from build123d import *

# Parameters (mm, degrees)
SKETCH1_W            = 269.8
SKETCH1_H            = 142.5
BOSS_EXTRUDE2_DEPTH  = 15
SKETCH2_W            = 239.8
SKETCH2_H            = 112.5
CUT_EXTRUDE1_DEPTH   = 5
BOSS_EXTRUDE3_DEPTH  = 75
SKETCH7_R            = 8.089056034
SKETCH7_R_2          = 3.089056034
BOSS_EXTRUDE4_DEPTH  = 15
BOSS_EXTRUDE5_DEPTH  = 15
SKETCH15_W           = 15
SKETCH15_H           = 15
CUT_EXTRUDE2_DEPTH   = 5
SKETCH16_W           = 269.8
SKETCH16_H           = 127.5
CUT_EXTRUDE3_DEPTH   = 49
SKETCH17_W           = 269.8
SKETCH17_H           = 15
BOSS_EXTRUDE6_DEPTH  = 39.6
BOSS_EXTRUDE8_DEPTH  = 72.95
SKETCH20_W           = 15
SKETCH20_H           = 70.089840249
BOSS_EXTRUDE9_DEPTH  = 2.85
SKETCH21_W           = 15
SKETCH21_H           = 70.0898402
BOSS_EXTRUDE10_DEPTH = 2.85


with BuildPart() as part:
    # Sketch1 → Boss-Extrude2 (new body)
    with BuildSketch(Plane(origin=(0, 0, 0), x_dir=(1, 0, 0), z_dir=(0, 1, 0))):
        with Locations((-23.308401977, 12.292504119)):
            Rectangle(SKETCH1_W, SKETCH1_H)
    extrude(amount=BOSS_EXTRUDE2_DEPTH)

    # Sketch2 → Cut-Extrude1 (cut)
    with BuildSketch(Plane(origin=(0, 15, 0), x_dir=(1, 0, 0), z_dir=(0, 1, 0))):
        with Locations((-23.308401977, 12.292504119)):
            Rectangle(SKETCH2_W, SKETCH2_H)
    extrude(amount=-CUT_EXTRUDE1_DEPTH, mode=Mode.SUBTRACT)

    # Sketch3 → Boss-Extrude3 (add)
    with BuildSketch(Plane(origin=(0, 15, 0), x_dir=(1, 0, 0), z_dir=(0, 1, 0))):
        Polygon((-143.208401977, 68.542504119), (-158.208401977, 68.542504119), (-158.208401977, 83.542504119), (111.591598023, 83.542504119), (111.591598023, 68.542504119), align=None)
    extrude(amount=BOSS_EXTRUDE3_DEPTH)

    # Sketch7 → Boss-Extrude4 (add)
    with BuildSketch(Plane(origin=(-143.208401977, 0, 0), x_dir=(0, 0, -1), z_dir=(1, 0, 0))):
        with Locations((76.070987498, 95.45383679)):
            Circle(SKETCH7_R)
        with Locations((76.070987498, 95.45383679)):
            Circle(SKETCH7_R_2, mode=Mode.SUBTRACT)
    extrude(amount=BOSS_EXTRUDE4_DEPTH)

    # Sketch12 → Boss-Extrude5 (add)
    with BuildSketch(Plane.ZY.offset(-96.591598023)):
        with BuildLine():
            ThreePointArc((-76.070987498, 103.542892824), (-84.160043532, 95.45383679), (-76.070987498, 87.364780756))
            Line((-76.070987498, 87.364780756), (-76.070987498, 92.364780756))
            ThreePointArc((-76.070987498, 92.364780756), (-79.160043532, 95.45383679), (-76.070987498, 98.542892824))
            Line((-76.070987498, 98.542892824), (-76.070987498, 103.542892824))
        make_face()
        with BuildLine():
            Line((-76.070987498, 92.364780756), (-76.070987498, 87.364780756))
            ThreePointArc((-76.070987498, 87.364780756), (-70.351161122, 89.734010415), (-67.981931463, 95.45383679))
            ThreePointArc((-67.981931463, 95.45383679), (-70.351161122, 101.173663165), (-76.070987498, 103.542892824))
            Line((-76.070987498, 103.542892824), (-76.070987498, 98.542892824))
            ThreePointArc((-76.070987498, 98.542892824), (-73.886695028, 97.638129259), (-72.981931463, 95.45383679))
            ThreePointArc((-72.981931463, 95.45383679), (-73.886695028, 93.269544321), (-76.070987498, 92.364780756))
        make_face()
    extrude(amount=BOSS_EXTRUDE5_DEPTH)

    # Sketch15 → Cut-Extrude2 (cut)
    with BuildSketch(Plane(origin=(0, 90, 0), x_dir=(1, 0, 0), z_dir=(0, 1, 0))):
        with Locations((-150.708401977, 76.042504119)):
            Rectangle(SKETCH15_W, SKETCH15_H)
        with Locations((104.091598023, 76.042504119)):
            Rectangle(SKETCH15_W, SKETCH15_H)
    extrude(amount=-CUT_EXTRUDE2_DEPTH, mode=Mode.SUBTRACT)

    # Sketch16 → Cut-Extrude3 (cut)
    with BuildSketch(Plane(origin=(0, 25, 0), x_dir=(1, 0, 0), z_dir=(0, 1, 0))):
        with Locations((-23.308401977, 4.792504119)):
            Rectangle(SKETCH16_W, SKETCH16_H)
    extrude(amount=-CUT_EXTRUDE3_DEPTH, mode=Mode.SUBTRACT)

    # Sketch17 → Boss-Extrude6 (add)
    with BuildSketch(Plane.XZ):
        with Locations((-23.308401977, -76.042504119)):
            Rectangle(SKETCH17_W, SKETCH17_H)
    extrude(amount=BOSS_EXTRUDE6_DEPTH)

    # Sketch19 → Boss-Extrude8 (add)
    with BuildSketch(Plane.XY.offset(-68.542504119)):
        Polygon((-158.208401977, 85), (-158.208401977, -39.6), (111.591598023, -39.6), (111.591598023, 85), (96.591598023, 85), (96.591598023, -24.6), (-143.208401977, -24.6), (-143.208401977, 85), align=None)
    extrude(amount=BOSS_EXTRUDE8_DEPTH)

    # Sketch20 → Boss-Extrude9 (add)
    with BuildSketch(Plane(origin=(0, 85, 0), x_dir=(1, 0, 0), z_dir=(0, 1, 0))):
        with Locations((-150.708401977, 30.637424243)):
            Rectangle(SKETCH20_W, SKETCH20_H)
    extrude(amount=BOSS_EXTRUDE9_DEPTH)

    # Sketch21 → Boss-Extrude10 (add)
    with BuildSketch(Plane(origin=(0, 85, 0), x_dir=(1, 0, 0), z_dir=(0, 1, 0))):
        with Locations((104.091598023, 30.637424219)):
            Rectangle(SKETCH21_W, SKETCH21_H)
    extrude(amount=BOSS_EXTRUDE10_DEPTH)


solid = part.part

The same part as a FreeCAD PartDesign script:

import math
import FreeCAD as App
import Part
import Sketcher
from FreeCAD import Vector


def add_polygon(sketch, points):
    """Adds a closed chain of lines whose ends are joined by coincident constraints."""
    first, n = sketch.GeometryCount, len(points)
    for a, b in zip(points, points[1:] + points[:1]):
        sketch.addGeometry(Part.LineSegment(App.Vector(*a, 0), App.Vector(*b, 0)), False)
    for i in range(n):
        sketch.addConstraint(Sketcher.Constraint("Coincident", first + i, 2, first + (i + 1) % n, 1))

doc = App.newDocument("Part")
body = doc.addObject("PartDesign::Body", "Body")

# Sketch on XZ plane
sketch1 = body.newObject("Sketcher::SketchObject", "Sketch")
sketch1.AttachmentSupport = (doc.getObject("XZ_Plane"), [""])
sketch1.MapMode = "FlatFace"
add_polygon(sketch1, [(-158, -84), (-158, 59), (112, 59), (112, -84)])  # lines 0-3
sketch1.addConstraint([
    Sketcher.Constraint("Vertical", 0),
    Sketcher.Constraint("Horizontal", 1),
    Sketcher.Constraint("Vertical", 2),
    Sketcher.Constraint("Horizontal", 3),
    Sketcher.Constraint("DistanceX", 1, 1, 1, 2, 269.8),
    Sketcher.Constraint("DistanceY", 0, 1, 0, 2, 142.5),
    Sketcher.Constraint("DistanceX", 0, 2, -1, 1, 158.208402),
    Sketcher.Constraint("DistanceY", -1, 1, 0, 2, 58.957496),
])
pad1 = body.newObject("PartDesign::Pad", "Pad")
pad1.Profile = sketch1
pad1.Length = 15
pad1.Reversed = True

# Sketch on XZ plane
sketch2 = body.newObject("Sketcher::SketchObject", "Sketch001")
sketch2.AttachmentSupport = (doc.getObject("XZ_Plane"), [""])
sketch2.MapMode = "FlatFace"
sketch2.AttachmentOffset = App.Placement(Vector(0, 0, -15), App.Rotation())
add_polygon(sketch2, [(-143, -69), (-143, 44), (97, 44), (97, -69)])  # lines 0-3
sketch2.addConstraint([
    Sketcher.Constraint("Vertical", 0),
    Sketcher.Constraint("Horizontal", 1),
    Sketcher.Constraint("Vertical", 2),
    Sketcher.Constraint("Horizontal", 3),
    Sketcher.Constraint("DistanceX", 1, 1, 1, 2, 239.8),
    Sketcher.Constraint("DistanceY", 0, 1, 0, 2, 112.5),
    Sketcher.Constraint("DistanceX", 0, 2, -1, 1, 143.208402),
    Sketcher.Constraint("DistanceY", -1, 1, 0, 2, 43.957496),
])
pocket1 = body.newObject("PartDesign::Pocket", "Pocket")
pocket1.Profile = sketch2
pocket1.Length = 5
pocket1.Reversed = True

# Sketch on XZ plane
sketch3 = body.newObject("Sketcher::SketchObject", "Sketch002")
sketch3.AttachmentSupport = (doc.getObject("XZ_Plane"), [""])
sketch3.MapMode = "FlatFace"
sketch3.AttachmentOffset = App.Placement(Vector(0, 0, -15), App.Rotation())
add_polygon(sketch3, [(-158, -69), (112, -69), (112, -84), (-158, -84)])  # lines 0-3
sketch3.addConstraint([
    Sketcher.Constraint("Horizontal", 0),
    Sketcher.Constraint("Vertical", 1),
    Sketcher.Constraint("Horizontal", 2),
    Sketcher.Constraint("Vertical", 3),
    Sketcher.Constraint("DistanceY", 1, 2, 1, 1, 15.0),
    Sketcher.Constraint("DistanceX", 0, 1, 0, 2, 269.8),
    Sketcher.Constraint("DistanceX", -1, 1, 0, 2, 111.591598),
    Sketcher.Constraint("DistanceY", 0, 2, -1, 1, 68.542504),
])
pad2 = body.newObject("PartDesign::Pad", "Pad001")
pad2.Profile = sketch3
pad2.Length = 75
pad2.Reversed = True

# Sketch on YZ plane
sketch4 = body.newObject("Sketcher::SketchObject", "Sketch003")
sketch4.AttachmentSupport = (doc.getObject("YZ_Plane"), [""])
sketch4.MapMode = "FlatFace"
sketch4.AttachmentOffset = App.Placement(Vector(0, 0, -143.208402), App.Rotation())
sketch4.addGeometry([
    Part.Circle(Vector(95.5, -76.1, 0), Vector(0, 0, 1), 8.1),
    Part.Circle(Vector(95.5, -76.1, 0), Vector(0, 0, 1), 3.1),
], False)
sketch4.addConstraint([
    Sketcher.Constraint("Coincident", 1, 3, 0, 3),
    Sketcher.Constraint("Diameter", 0, 16.178112),
    Sketcher.Constraint("Diameter", 1, 6.178112),
    Sketcher.Constraint("DistanceX", -1, 1, 0, 3, 95.453837),
    Sketcher.Constraint("DistanceY", 0, 3, -1, 1, 76.070987),
])
pad3 = body.newObject("PartDesign::Pad", "Pad002")
pad3.Profile = sketch4
pad3.Length = 15

# Sketch on YZ plane
sketch5 = body.newObject("Sketcher::SketchObject", "Sketch004")
sketch5.AttachmentSupport = (doc.getObject("YZ_Plane"), [""])
sketch5.MapMode = "FlatFace"
sketch5.AttachmentOffset = App.Placement(Vector(0, 0, 96.591598), App.Rotation())
sketch5.addGeometry([
    Part.ArcOfCircle(Part.Circle(Vector(95.5, -76.1, 0), Vector(0, 0, 1), 8.1), math.radians(180), math.radians(360)),  # 0
    Part.ArcOfCircle(Part.Circle(Vector(95.5, -76.1, 0), Vector(0, 0, 1), 8.1), math.radians(90), math.radians(180)),  # 1
    Part.ArcOfCircle(Part.Circle(Vector(95.5, -76.1, 0), Vector(0, 0, 1), 8.1), math.radians(0), math.radians(90)),  # 2
    Part.ArcOfCircle(Part.Circle(Vector(95.5, -76.1, 0), Vector(0, 0, 1), 3.1), math.radians(180), math.radians(360)),  # 3
    Part.ArcOfCircle(Part.Circle(Vector(95.5, -76.1, 0), Vector(0, 0, 1), 3.1), math.radians(0), math.radians(90)),  # 4
    Part.ArcOfCircle(Part.Circle(Vector(95.5, -76.1, 0), Vector(0, 0, 1), 3.1), math.radians(90), math.radians(180)),  # 5
], False)
sketch5.addConstraint([
    Sketcher.Constraint("Tangent", 0, 1, 1, 2),
    Sketcher.Constraint("Tangent", 1, 1, 2, 2),
    Sketcher.Constraint("Tangent", 2, 1, 0, 2),
    Sketcher.Constraint("Tangent", 3, 2, 4, 1),
    Sketcher.Constraint("Tangent", 4, 2, 5, 1),
    Sketcher.Constraint("Tangent", 5, 2, 3, 1),
    Sketcher.Constraint("Coincident", 3, 3, 0, 3),
    Sketcher.Constraint("Horizontal", 5, 3, 0, 1),
    Sketcher.Constraint("Horizontal", 0, 1, 2, 1),
    Sketcher.Constraint("Horizontal", 2, 1, 3, 2),
    Sketcher.Constraint("Horizontal", 3, 2, 5, 2),
    Sketcher.Constraint("Vertical", 5, 3, 1, 1),
    Sketcher.Constraint("Vertical", 1, 1, 4, 2),
    Sketcher.Constraint("Radius", 0, 8.089056),
    Sketcher.Constraint("Radius", 3, 3.089056),
    Sketcher.Constraint("DistanceX", -1, 1, 0, 1, 87.364781),
    Sketcher.Constraint("DistanceY", 1, 1, -1, 1, 67.981931),
])
pad4 = body.newObject("PartDesign::Pad", "Pad003")
pad4.Profile = sketch5
pad4.Length = 15
pad4.Reversed = True

# Sketch on XZ plane
sketch6 = body.newObject("Sketcher::SketchObject", "Sketch005")
sketch6.AttachmentSupport = (doc.getObject("XZ_Plane"), [""])
sketch6.MapMode = "FlatFace"
sketch6.AttachmentOffset = App.Placement(Vector(0, 0, -90), App.Rotation())
add_polygon(sketch6, [(-158, -84), (-158, -69), (-143, -69), (-143, -84)])  # lines 0-3
add_polygon(sketch6, [(97, -84), (97, -69), (112, -69), (112, -84)])  # lines 4-7
sketch6.addConstraint([
    Sketcher.Constraint("Vertical", 0),
    Sketcher.Constraint("Horizontal", 1),
    Sketcher.Constraint("Vertical", 2),
    Sketcher.Constraint("Horizontal", 3),
    Sketcher.Constraint("Vertical", 4),
    Sketcher.Constraint("Horizontal", 5),
    Sketcher.Constraint("Vertical", 6),
    Sketcher.Constraint("Horizontal", 7),
    Sketcher.Constraint("Horizontal", 1, 2, 4, 2),
    Sketcher.Constraint("Horizontal", 3, 2, 6, 2),
    Sketcher.Constraint("Equal", 3, 5),
    Sketcher.Constraint("Equal", 7, 0),
    Sketcher.Constraint("DistanceX", 1, 1, 1, 2, 15.0),
    Sketcher.Constraint("DistanceX", 1, 2, 4, 2, 239.8),
    Sketcher.Constraint("DistanceX", 0, 2, -1, 1, 158.208402),
    Sketcher.Constraint("DistanceY", 0, 2, -1, 1, 68.542504),
])
pocket2 = body.newObject("PartDesign::Pocket", "Pocket001")
pocket2.Profile = sketch6
pocket2.Length = 5
pocket2.Reversed = True

# Sketch on XZ plane
sketch7 = body.newObject("Sketcher::SketchObject", "Sketch006")
sketch7.AttachmentSupport = (doc.getObject("XZ_Plane"), [""])
sketch7.MapMode = "FlatFace"
sketch7.AttachmentOffset = App.Placement(Vector(0, 0, -25), App.Rotation())
add_polygon(sketch7, [(-158, -69), (-158, 59), (112, 59), (112, -69)])  # lines 0-3
sketch7.addConstraint([
    Sketcher.Constraint("Vertical", 0),
    Sketcher.Constraint("Horizontal", 1),
    Sketcher.Constraint("Vertical", 2),
    Sketcher.Constraint("Horizontal", 3),
    Sketcher.Constraint("DistanceX", 1, 1, 1, 2, 269.8),
    Sketcher.Constraint("DistanceY", 0, 1, 0, 2, 127.5),
    Sketcher.Constraint("DistanceX", 0, 2, -1, 1, 158.208402),
    Sketcher.Constraint("DistanceY", -1, 1, 0, 2, 58.957496),
])
pocket3 = body.newObject("PartDesign::Pocket", "Pocket002")
pocket3.Profile = sketch7
pocket3.Length = 49
pocket3.Reversed = True

# Sketch on XZ plane
sketch8 = body.newObject("Sketcher::SketchObject", "Sketch007")
sketch8.AttachmentSupport = (doc.getObject("XZ_Plane"), [""])
sketch8.MapMode = "FlatFace"
add_polygon(sketch8, [(-158, -69), (-158, -84), (112, -84), (112, -69)])  # lines 0-3
sketch8.addConstraint([
    Sketcher.Constraint("Vertical", 0),
    Sketcher.Constraint("Horizontal", 1),
    Sketcher.Constraint("Vertical", 2),
    Sketcher.Constraint("Horizontal", 3),
    Sketcher.Constraint("DistanceY", 0, 2, 0, 1, 15.0),
    Sketcher.Constraint("DistanceX", 1, 1, 1, 2, 269.8),
    Sketcher.Constraint("DistanceX", 0, 2, -1, 1, 158.208402),
    Sketcher.Constraint("DistanceY", 0, 2, -1, 1, 83.542504),
])
pad5 = body.newObject("PartDesign::Pad", "Pad004")
pad5.Profile = sketch8
pad5.Length = 39.6

# Sketch on XY plane
sketch9 = body.newObject("Sketcher::SketchObject", "Sketch008")
sketch9.AttachmentSupport = (doc.getObject("XY_Plane"), [""])
sketch9.MapMode = "FlatFace"
sketch9.AttachmentOffset = App.Placement(Vector(0, 0, -68.542504), App.Rotation())
add_polygon(sketch9, [(-158, 85), (-158, -40), (112, -40), (112, 85), (97, 85), (97, -25), (-143, -25), (-143, 85)])  # lines 0-7
sketch9.addConstraint([
    Sketcher.Constraint("Vertical", 0),
    Sketcher.Constraint("Horizontal", 1),
    Sketcher.Constraint("Vertical", 2),
    Sketcher.Constraint("Horizontal", 3),
    Sketcher.Constraint("Vertical", 4),
    Sketcher.Constraint("Horizontal", 5),
    Sketcher.Constraint("Vertical", 6),
    Sketcher.Constraint("Horizontal", 7),
    Sketcher.Constraint("Horizontal", 3, 2, 6, 2),
    Sketcher.Constraint("Equal", 3, 7),
    Sketcher.Constraint("DistanceX", 3, 2, 3, 1, 15.0),
    Sketcher.Constraint("DistanceX", 1, 1, 1, 2, 269.8),
    Sketcher.Constraint("DistanceY", 0, 2, 0, 1, 124.6),
    Sketcher.Constraint("DistanceY", 4, 2, 4, 1, 109.6),
    Sketcher.Constraint("DistanceY", -1, 1, 2, 2, 85.0),
    Sketcher.Constraint("DistanceX", 0, 2, -1, 1, 158.208402),
])
pad6 = body.newObject("PartDesign::Pad", "Pad005")
pad6.Profile = sketch9
pad6.Length = 72.95

# Sketch on XZ plane
sketch10 = body.newObject("Sketcher::SketchObject", "Sketch009")
sketch10.AttachmentSupport = (doc.getObject("XZ_Plane"), [""])
sketch10.MapMode = "FlatFace"
sketch10.AttachmentOffset = App.Placement(Vector(0, 0, -85), App.Rotation())
add_polygon(sketch10, [(-158, -66), (-158, 4), (-143, 4), (-143, -66)])  # lines 0-3
sketch10.addConstraint([
    Sketcher.Constraint("Vertical", 0),
    Sketcher.Constraint("Horizontal", 1),
    Sketcher.Constraint("Vertical", 2),
    Sketcher.Constraint("Horizontal", 3),
    Sketcher.Constraint("DistanceX", 1, 1, 1, 2, 15.0),
    Sketcher.Constraint("DistanceY", 0, 1, 0, 2, 70.08984),
    Sketcher.Constraint("DistanceX", 0, 2, -1, 1, 158.208402),
    Sketcher.Constraint("DistanceY", -1, 1, 0, 2, 4.407496),
])
pad7 = body.newObject("PartDesign::Pad", "Pad006")
pad7.Profile = sketch10
pad7.Length = 2.85
pad7.Reversed = True

# Sketch on XZ plane
sketch11 = body.newObject("Sketcher::SketchObject", "Sketch010")
sketch11.AttachmentSupport = (doc.getObject("XZ_Plane"), [""])
sketch11.MapMode = "FlatFace"
sketch11.AttachmentOffset = App.Placement(Vector(0, 0, -85), App.Rotation())
add_polygon(sketch11, [(97, -66), (97, 4), (112, 4), (112, -66)])  # lines 0-3
sketch11.addConstraint([
    Sketcher.Constraint("Vertical", 0),
    Sketcher.Constraint("Horizontal", 1),
    Sketcher.Constraint("Vertical", 2),
    Sketcher.Constraint("Horizontal", 3),
    Sketcher.Constraint("DistanceX", 1, 1, 1, 2, 15.0),
    Sketcher.Constraint("DistanceY", 0, 1, 0, 2, 70.08984),
    Sketcher.Constraint("DistanceX", -1, 1, 0, 2, 96.591598),
    Sketcher.Constraint("DistanceY", -1, 1, 0, 2, 4.407496),
])
pad8 = body.newObject("PartDesign::Pad", "Pad007")
pad8.Profile = sketch11
pad8.Length = 2.85
pad8.Reversed = True

doc.recompute()
